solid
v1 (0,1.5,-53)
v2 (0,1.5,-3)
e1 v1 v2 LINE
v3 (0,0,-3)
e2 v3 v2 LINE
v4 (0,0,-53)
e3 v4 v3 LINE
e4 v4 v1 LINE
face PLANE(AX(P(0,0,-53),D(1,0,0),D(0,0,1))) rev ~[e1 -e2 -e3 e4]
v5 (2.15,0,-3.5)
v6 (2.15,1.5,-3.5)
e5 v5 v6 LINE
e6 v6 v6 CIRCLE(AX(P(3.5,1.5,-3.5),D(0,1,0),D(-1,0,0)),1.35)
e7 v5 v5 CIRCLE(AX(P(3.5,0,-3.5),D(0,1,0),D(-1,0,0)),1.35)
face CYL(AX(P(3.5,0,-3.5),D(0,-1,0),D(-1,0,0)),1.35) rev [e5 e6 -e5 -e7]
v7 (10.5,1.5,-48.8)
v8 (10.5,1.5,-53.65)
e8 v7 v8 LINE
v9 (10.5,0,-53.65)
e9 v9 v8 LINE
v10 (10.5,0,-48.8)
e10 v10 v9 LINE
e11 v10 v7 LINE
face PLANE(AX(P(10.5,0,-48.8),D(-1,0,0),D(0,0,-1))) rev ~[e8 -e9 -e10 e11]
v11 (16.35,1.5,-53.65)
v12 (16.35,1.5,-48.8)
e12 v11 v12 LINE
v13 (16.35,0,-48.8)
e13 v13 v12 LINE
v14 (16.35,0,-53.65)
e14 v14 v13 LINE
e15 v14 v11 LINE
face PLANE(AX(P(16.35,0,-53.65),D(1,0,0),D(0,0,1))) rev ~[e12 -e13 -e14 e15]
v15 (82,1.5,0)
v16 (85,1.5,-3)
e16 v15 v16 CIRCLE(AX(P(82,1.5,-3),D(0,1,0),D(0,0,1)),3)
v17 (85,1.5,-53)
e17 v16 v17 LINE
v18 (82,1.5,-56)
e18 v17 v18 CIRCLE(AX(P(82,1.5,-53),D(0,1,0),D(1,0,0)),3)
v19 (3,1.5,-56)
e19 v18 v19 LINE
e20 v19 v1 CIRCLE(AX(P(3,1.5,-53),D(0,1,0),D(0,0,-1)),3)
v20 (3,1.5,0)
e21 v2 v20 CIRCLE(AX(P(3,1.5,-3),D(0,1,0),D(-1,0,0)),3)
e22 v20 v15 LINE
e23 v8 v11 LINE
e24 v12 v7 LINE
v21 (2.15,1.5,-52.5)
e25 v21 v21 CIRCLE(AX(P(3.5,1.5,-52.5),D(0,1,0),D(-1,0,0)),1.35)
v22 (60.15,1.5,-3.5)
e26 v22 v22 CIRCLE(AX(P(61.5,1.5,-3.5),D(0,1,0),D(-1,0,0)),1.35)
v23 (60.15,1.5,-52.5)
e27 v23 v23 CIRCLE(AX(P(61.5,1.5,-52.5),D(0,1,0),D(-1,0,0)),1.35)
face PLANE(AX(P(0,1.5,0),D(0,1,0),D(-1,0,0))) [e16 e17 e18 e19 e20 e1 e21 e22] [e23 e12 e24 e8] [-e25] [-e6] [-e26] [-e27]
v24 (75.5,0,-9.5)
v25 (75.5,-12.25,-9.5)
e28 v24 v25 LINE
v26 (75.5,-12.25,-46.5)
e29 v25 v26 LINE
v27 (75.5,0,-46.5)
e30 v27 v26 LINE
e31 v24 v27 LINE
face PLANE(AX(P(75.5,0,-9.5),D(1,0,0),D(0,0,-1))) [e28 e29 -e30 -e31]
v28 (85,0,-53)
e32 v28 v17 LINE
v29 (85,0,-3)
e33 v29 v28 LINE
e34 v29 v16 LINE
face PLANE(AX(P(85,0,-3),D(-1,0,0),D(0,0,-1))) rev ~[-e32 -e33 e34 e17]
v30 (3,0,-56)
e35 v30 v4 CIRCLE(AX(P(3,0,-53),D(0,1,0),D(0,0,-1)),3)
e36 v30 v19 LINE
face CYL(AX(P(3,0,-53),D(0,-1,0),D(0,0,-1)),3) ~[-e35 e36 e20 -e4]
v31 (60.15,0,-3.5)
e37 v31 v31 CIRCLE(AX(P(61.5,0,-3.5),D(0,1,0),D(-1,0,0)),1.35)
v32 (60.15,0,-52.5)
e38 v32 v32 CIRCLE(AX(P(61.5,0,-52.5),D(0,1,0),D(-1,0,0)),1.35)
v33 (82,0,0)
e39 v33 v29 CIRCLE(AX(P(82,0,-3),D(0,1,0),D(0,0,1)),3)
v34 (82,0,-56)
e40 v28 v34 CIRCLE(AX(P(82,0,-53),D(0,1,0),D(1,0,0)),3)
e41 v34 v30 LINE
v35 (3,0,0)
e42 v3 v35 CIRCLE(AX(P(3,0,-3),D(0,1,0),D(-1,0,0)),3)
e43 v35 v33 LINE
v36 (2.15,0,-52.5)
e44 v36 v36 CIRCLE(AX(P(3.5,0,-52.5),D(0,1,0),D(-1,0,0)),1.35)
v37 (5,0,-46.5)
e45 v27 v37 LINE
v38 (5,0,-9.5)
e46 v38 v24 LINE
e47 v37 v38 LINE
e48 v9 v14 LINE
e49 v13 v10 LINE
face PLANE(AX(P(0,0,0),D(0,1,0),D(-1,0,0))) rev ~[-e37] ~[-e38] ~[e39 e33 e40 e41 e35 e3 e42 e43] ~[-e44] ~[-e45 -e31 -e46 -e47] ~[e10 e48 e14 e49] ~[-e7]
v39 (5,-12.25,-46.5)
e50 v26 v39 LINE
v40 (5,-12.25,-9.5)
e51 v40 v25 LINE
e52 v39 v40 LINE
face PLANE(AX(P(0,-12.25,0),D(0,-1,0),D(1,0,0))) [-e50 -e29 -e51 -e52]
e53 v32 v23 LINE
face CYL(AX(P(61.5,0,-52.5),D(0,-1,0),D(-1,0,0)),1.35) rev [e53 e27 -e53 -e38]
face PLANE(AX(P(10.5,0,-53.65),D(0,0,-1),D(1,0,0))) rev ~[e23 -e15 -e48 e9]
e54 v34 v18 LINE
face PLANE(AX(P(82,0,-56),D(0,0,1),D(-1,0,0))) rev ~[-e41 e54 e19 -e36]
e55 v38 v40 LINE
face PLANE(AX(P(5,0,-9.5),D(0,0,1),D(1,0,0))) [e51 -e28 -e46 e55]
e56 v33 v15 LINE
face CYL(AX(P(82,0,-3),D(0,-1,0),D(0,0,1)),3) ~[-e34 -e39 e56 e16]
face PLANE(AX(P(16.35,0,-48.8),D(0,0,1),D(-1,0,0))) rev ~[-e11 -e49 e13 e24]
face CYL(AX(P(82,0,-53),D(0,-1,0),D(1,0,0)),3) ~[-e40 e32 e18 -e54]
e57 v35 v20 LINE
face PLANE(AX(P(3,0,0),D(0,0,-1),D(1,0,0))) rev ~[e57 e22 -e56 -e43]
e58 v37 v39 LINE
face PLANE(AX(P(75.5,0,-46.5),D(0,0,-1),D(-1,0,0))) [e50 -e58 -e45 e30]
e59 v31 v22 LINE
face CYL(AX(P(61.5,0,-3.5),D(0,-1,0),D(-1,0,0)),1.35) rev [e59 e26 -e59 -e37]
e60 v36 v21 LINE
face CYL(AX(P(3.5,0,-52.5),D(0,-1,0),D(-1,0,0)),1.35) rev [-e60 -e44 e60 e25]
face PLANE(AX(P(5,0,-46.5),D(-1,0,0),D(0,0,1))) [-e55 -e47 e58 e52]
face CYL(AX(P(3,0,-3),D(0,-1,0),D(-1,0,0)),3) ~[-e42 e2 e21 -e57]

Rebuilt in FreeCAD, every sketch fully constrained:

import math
import FreeCAD as App
import Part
import Sketcher
from FreeCAD import Vector
Q = App.Units.Quantity

doc = App.newDocument("Part")
body = doc.addObject("PartDesign::Body", "Body")

sketch1 = body.newObject("Sketcher::SketchObject", "Sketch")
sketch1.AttachmentSupport = (doc.getObject("XZ_Plane"), [""])
sketch1.MapMode = "FlatFace"
sketch1.addGeometry(Part.ArcOfCircle(Part.Circle(Vector(3, -3, 0), Vector(0, 0, 1), 3), math.radians(90), math.radians(180)), False)
sketch1.addGeometry(Part.LineSegment(Vector(3, 0, 0), Vector(82, 0, 0)), False)
sketch1.addGeometry(Part.ArcOfCircle(Part.Circle(Vector(82, -3, 0), Vector(0, 0, 1), 3), math.radians(0), math.radians(90)), False)
sketch1.addGeometry(Part.LineSegment(Vector(85, -3, 0), Vector(85, -53, 0)), False)
sketch1.addGeometry(Part.ArcOfCircle(Part.Circle(Vector(82, -53, 0), Vector(0, 0, 1), 3), math.radians(-90), math.radians(0)), False)
sketch1.addGeometry(Part.LineSegment(Vector(82, -56, 0), Vector(3, -56, 0)), False)
sketch1.addGeometry(Part.ArcOfCircle(Part.Circle(Vector(3, -53, 0), Vector(0, 0, 1), 3), math.radians(180), math.radians(270)), False)
sketch1.addGeometry(Part.LineSegment(Vector(0, -53, 0), Vector(0, -3, 0)), False)
sketch1.addGeometry(Part.Circle(Vector(61.5, -52.5, 0), Vector(0, 0, 1), 1.4), False)
sketch1.addGeometry(Part.Circle(Vector(3.5, -52.5, 0), Vector(0, 0, 1), 1.4), False)
sketch1.addGeometry(Part.Circle(Vector(61.5, -3.5, 0), Vector(0, 0, 1), 1.4), False)
sketch1.addGeometry(Part.Circle(Vector(3.5, -3.5, 0), Vector(0, 0, 1), 1.4), False)
sketch1.addConstraint(Sketcher.Constraint("Tangent", 0, 1, 1, 1))
sketch1.addConstraint(Sketcher.Constraint("Tangent", 1, 2, 2, 2))
sketch1.addConstraint(Sketcher.Constraint("Tangent", 2, 1, 3, 1))
sketch1.addConstraint(Sketcher.Constraint("Tangent", 3, 2, 4, 2))
sketch1.addConstraint(Sketcher.Constraint("Tangent", 4, 1, 5, 1))
sketch1.addConstraint(Sketcher.Constraint("Tangent", 5, 2, 6, 2))
sketch1.addConstraint(Sketcher.Constraint("Tangent", 6, 1, 7, 1))
sketch1.addConstraint(Sketcher.Constraint("Tangent", 7, 2, 0, 2))
sketch1.addConstraint(Sketcher.Constraint("Horizontal", 1))
sketch1.addConstraint(Sketcher.Constraint("Vertical", 3))
sketch1.addConstraint(Sketcher.Constraint("Horizontal", 5))
sketch1.addConstraint(Sketcher.Constraint("Vertical", 7))
sketch1.addConstraint(Sketcher.Constraint("Equal", 0, 2))
sketch1.addConstraint(Sketcher.Constraint("Equal", 2, 4))
sketch1.addConstraint(Sketcher.Constraint("Equal", 4, 6))
sketch1.addConstraint(Sketcher.Constraint("Equal", 8, 9))
sketch1.addConstraint(Sketcher.Constraint("Equal", 9, 10))
sketch1.addConstraint(Sketcher.Constraint("Equal", 10, 11))
sketch1.addConstraint(Sketcher.Constraint("PointOnObject", 0, 1, -1))
sketch1.addConstraint(Sketcher.Constraint("PointOnObject", 6, 1, -2))
sketch1.addConstraint(Sketcher.Constraint("Horizontal", 8, 3, 9, 3))
sketch1.addConstraint(Sketcher.Constraint("Horizontal", 10, 3, 11, 3))
sketch1.addConstraint(Sketcher.Constraint("Vertical", 8, 3, 10, 3))
sketch1.addConstraint(Sketcher.Constraint("Vertical", 9, 3, 11, 3))
sketch1.addConstraint(Sketcher.Constraint("Radius", 0, Q("3 mm")))
sketch1.addConstraint(Sketcher.Constraint("Diameter", 8, Q("2.7 mm")))
sketch1.addConstraint(Sketcher.Constraint("DistanceX", -1, 1, 2, 1, Q("85 mm")))
sketch1.addConstraint(Sketcher.Constraint("DistanceY", 4, 1, -1, 1, Q("56 mm")))
sketch1.addConstraint(Sketcher.Constraint("DistanceX", 9, 3, 8, 3, Q("58 mm")))
sketch1.addConstraint(Sketcher.Constraint("DistanceY", 8, 3, 10, 3, Q("49 mm")))
sketch1.addConstraint(Sketcher.Constraint("DistanceX", -1, 1, 9, 3, Q("3.5 mm")))
sketch1.addConstraint(Sketcher.Constraint("DistanceY", 10, 3, -1, 1, Q("3.5 mm")))
pad1 = body.newObject("PartDesign::Pad", "Pad")
pad1.Profile = sketch1
pad1.Length = 1.5
pad1.Reversed = True

sketch2 = body.newObject("Sketcher::SketchObject", "Sketch001")
sketch2.AttachmentSupport = (doc.getObject("XZ_Plane"), [""])
sketch2.MapMode = "FlatFace"
sketch2.addGeometry(Part.LineSegment(Vector(76, -10, 0), Vector(5, -10, 0)), False)
sketch2.addGeometry(Part.LineSegment(Vector(5, -10, 0), Vector(5, -46, 0)), False)
sketch2.addGeometry(Part.LineSegment(Vector(5, -46, 0), Vector(76, -46, 0)), False)
sketch2.addGeometry(Part.LineSegment(Vector(76, -46, 0), Vector(76, -10, 0)), False)
sketch2.addConstraint(Sketcher.Constraint("Coincident", 0, 2, 1, 1))
sketch2.addConstraint(Sketcher.Constraint("Coincident", 1, 2, 2, 1))
sketch2.addConstraint(Sketcher.Constraint("Coincident", 2, 2, 3, 1))
sketch2.addConstraint(Sketcher.Constraint("Coincident", 3, 2, 0, 1))
sketch2.addConstraint(Sketcher.Constraint("Horizontal", 0))
sketch2.addConstraint(Sketcher.Constraint("Vertical", 1))
sketch2.addConstraint(Sketcher.Constraint("Horizontal", 2))
sketch2.addConstraint(Sketcher.Constraint("Vertical", 3))
sketch2.addConstraint(Sketcher.Constraint("DistanceX", -1, 1, 0, 2, Q("5 mm")))
sketch2.addConstraint(Sketcher.Constraint("DistanceY", 0, 2, -1, 1, Q("9.5 mm")))
sketch2.addConstraint(Sketcher.Constraint("DistanceY", 1, 2, 1, 1, Q("37 mm")))
sketch2.addConstraint(Sketcher.Constraint("DistanceX", 0, 2, 0, 1, Q("70.5 mm")))
pad2 = body.newObject("PartDesign::Pad", "Pad001")
pad2.Profile = sketch2
pad2.Length = 12.25

sketch3 = body.newObject("Sketcher::SketchObject", "Sketch002")
sketch3.AttachmentSupport = (doc.getObject("XZ_Plane"), [""])
sketch3.MapMode = "FlatFace"
sketch3.addGeometry(Part.LineSegment(Vector(10.5, -48.8, 0), Vector(10.5, -53.6, 0)), False)
sketch3.addGeometry(Part.LineSegment(Vector(10.5, -53.6, 0), Vector(16.4, -53.6, 0)), False)
sketch3.addGeometry(Part.LineSegment(Vector(16.4, -53.6, 0), Vector(16.4, -48.8, 0)), False)
sketch3.addGeometry(Part.LineSegment(Vector(16.4, -48.8, 0), Vector(10.5, -48.8, 0)), False)
sketch3.addConstraint(Sketcher.Constraint("Coincident", 0, 2, 1, 1))
sketch3.addConstraint(Sketcher.Constraint("Coincident", 1, 2, 2, 1))
sketch3.addConstraint(Sketcher.Constraint("Coincident", 2, 2, 3, 1))
sketch3.addConstraint(Sketcher.Constraint("Coincident", 3, 2, 0, 1))
sketch3.addConstraint(Sketcher.Constraint("Vertical", 0))
sketch3.addConstraint(Sketcher.Constraint("Horizontal", 1))
sketch3.addConstraint(Sketcher.Constraint("Vertical", 2))
sketch3.addConstraint(Sketcher.Constraint("Horizontal", 3))
sketch3.addConstraint(Sketcher.Constraint("DistanceX", 1, 1, 1, 2, Q("5.85 mm")))
sketch3.addConstraint(Sketcher.Constraint("DistanceY", 0, 2, 0, 1, Q("4.85 mm")))
sketch3.addConstraint(Sketcher.Constraint("DistanceX", -1, 1, 0, 2, Q("10.5 mm")))
sketch3.addConstraint(Sketcher.Constraint("DistanceY", 2, 2, -1, 1, Q("48.8 mm")))
pocket1 = body.newObject("PartDesign::Pocket", "Pocket")
pocket1.Profile = sketch3
pocket1.Type = "UpToFirst"

doc.recompute()
